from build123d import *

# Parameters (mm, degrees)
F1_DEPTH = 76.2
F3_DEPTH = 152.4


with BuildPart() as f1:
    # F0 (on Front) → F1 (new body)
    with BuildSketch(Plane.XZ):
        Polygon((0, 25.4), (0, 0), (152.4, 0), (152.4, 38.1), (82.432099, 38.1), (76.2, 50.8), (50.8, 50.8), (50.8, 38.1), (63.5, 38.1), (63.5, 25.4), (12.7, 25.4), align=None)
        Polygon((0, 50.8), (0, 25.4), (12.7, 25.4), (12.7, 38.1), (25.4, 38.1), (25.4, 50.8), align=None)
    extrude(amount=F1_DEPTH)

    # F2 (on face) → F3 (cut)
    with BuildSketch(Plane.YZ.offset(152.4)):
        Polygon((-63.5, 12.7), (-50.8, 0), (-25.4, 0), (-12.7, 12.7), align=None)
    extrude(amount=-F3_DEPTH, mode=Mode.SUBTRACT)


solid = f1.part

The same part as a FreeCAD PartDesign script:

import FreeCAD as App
import Part
import Sketcher

V = App.Vector
Q = App.Units.Quantity

doc = App.newDocument("Part")
params = doc.addObject("Spreadsheet::Sheet", "Params")
for row, (alias, value) in enumerate([
    ("sketch1_width", "6 in"),
    ("sketch1_width2", "1 in"),
    ("sketch1_width3", "2 in"),
    ("sketch1_width4", "0.5 in"),
    ("pad1_length", "3 in"),
    ("sketch2_width", "1 in"),
    ("sketch2_width2", "2 in"),
    ("pocket1_length", "6 in"),
], start=1):
    params.set(f"A{row}", alias)
    params.set(f"B{row}", "=" + value)
    params.setAlias(f"B{row}", alias)

body = doc.addObject("PartDesign::Body", "Body")

sketch1 = doc.addObject("Sketcher::SketchObject", "Sketch")
body.addObject(sketch1)
sketch1.AttachmentSupport = (doc.XZ_Plane, [""])
sketch1.MapMode = "FlatFace"
sketch1.addGeometry([
    Part.LineSegment(V(0, 0, 0), V(152.4, 0, 0)),
    Part.LineSegment(V(152.4, 0, 0), V(152.4, 38.1, 0)),
    Part.LineSegment(V(152.4, 38.1, 0), V(82.432099, 38.1, 0)),
    Part.LineSegment(V(82.432099, 38.1, 0), V(76.2, 50.8, 0)),
    Part.LineSegment(V(76.2, 50.8, 0), V(50.8, 50.8, 0)),
    Part.LineSegment(V(50.8, 50.8, 0), V(50.8, 38.1, 0)),
    Part.LineSegment(V(50.8, 38.1, 0), V(63.5, 38.1, 0)),
    Part.LineSegment(V(63.5, 38.1, 0), V(63.5, 25.4, 0)),
    Part.LineSegment(V(63.5, 25.4, 0), V(12.7, 25.4, 0)),
    Part.LineSegment(V(12.7, 25.4, 0), V(12.7, 38.1, 0)),
    Part.LineSegment(V(12.7, 38.1, 0), V(25.4, 38.1, 0)),
    Part.LineSegment(V(25.4, 38.1, 0), V(25.4, 50.8, 0)),
    Part.LineSegment(V(25.4, 50.8, 0), V(0, 50.8, 0)),
    Part.LineSegment(V(0, 50.8, 0), V(0, 0, 0)),
], False)
sketch1.addConstraint([
    Sketcher.Constraint("Coincident", 0, 2, 1, 1),
    Sketcher.Constraint("Coincident", 1, 2, 2, 1),
    Sketcher.Constraint("Coincident", 2, 2, 3, 1),
    Sketcher.Constraint("Coincident", 3, 2, 4, 1),
    Sketcher.Constraint("Coincident", 4, 2, 5, 1),
    Sketcher.Constraint("Coincident", 5, 2, 6, 1),
    Sketcher.Constraint("Coincident", 6, 2, 7, 1),
    Sketcher.Constraint("Coincident", 7, 2, 8, 1),
    Sketcher.Constraint("Coincident", 8, 2, 9, 1),
    Sketcher.Constraint("Coincident", 9, 2, 10, 1),
    Sketcher.Constraint("Coincident", 10, 2, 11, 1),
    Sketcher.Constraint("Coincident", 11, 2, 12, 1),
    Sketcher.Constraint("Coincident", 12, 2, 13, 1),
    Sketcher.Constraint("Coincident", 13, 2, 0, 1),
    Sketcher.Constraint("Horizontal", 0),
    Sketcher.Constraint("Vertical", 1),
    Sketcher.Constraint("Horizontal", 2),
    Sketcher.Constraint("Horizontal", 4),
    Sketcher.Constraint("Vertical", 5),
    Sketcher.Constraint("Horizontal", 6),
    Sketcher.Constraint("Vertical", 7),
    Sketcher.Constraint("Horizontal", 8),
    Sketcher.Constraint("Vertical", 9),
    Sketcher.Constraint("Horizontal", 10),
    Sketcher.Constraint("Vertical", 11),
    Sketcher.Constraint("Horizontal", 12),
    Sketcher.Constraint("Vertical", 13),
    Sketcher.Constraint("Coincident", 13, 2, -1, 1),
    Sketcher.Constraint("Horizontal", 2, 2, 5, 2),
    Sketcher.Constraint("Horizontal", 6, 2, 9, 2),
    Sketcher.Constraint("Horizontal", 4, 2, 11, 2),
    Sketcher.Constraint("Equal", 6, 10),
    Sketcher.Constraint("Equal", 4, 12),
    Sketcher.Constraint("Equal", 10, 5),
    Sketcher.Constraint("Equal", 5, 7),
    Sketcher.Constraint("Equal", 8, 13),
    Sketcher.Constraint("DistanceX", 0, 1, 0, 2, Q("6 in")),
    Sketcher.Constraint("DistanceX", 4, 2, 4, 1, Q("1 in")),
    Sketcher.Constraint("DistanceX", 8, 2, 8, 1, Q("2 in")),
    Sketcher.Constraint("DistanceX", 6, 1, 6, 2, Q("0.5 in")),
    Sketcher.Constraint("DistanceX", 2, 2, 2, 1, Q("69.967901 mm")),
])
sketch1.setExpression("Constraints[36]", "Params.sketch1_width")
sketch1.setExpression("Constraints[37]", "Params.sketch1_width2")
sketch1.setExpression("Constraints[38]", "Params.sketch1_width3")
sketch1.setExpression("Constraints[39]", "Params.sketch1_width4")
pad1 = doc.addObject("PartDesign::Pad", "Pad")
body.addObject(pad1)
pad1.Profile = sketch1
pad1.setExpression("Length", "Params.pad1_length")

sketch2 = doc.addObject("Sketcher::SketchObject", "Sketch001")
body.addObject(sketch2)
sketch2.AttachmentSupport = (doc.YZ_Plane, [""])
sketch2.MapMode = "FlatFace"
sketch2.AttachmentOffset = App.Placement(V(0, 0, 6 * 25.4), App.Rotation())
sketch2.addGeometry([
    Part.LineSegment(V(-63.5, 12.7, 0), V(-50.8, 0, 0)),
    Part.LineSegment(V(-50.8, 0, 0), V(-25.4, 0, 0)),
    Part.LineSegment(V(-25.4, 0, 0), V(-12.7, 12.7, 0)),
    Part.LineSegment(V(-12.7, 12.7, 0), V(-63.5, 12.7, 0)),
], False)
sketch2.addConstraint([
    Sketcher.Constraint("Coincident", 0, 2, 1, 1),
    Sketcher.Constraint("Coincident", 1, 2, 2, 1),
    Sketcher.Constraint("Coincident", 2, 2, 3, 1),
    Sketcher.Constraint("Coincident", 3, 2, 0, 1),
    Sketcher.Constraint("Horizontal", 1),
    Sketcher.Constraint("Horizontal", 3),
    Sketcher.Constraint("PointOnObject", 0, 2, -1),
    Sketcher.Constraint("Perpendicular", 0, 2),
    Sketcher.Constraint("Equal", 0, 2),
    Sketcher.Constraint("DistanceX", 1, 1, 1, 2, Q("1 in")),
    Sketcher.Constraint("DistanceX", 3, 2, 3, 1, Q("2 in")),
    Sketcher.Constraint("DistanceX", 0, 2, -1, 1, Q("2 in")),
])
sketch2.setExpression("Constraints[9]", "Params.sketch2_width")
sketch2.setExpression("Constraints[10]", "Params.sketch2_width2")
pocket1 = doc.addObject("PartDesign::Pocket", "Pocket")
body.addObject(pocket1)
pocket1.Profile = sketch2
pocket1.setExpression("Length", "Params.pocket1_length")

doc.recompute()
